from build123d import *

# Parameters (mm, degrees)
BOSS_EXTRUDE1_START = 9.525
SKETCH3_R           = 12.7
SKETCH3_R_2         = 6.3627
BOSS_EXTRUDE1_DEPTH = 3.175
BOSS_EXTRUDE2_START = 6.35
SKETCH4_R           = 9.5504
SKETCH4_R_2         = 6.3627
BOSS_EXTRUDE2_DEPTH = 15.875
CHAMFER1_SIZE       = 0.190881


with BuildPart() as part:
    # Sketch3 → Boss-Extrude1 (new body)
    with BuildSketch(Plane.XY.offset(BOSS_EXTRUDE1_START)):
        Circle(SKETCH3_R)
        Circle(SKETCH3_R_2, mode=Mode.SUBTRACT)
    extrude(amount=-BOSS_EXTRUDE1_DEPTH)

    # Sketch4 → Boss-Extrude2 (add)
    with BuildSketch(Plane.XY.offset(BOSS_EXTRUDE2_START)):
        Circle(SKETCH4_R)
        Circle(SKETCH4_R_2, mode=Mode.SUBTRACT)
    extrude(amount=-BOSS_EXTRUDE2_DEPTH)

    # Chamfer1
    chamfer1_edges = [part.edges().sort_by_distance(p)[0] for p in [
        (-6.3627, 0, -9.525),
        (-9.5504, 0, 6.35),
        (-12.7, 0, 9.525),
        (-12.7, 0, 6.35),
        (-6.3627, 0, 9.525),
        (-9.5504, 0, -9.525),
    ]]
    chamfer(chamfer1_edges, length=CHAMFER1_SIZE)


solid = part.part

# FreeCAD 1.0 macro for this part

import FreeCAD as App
import Part
import Sketcher
from FreeCAD import Vector
Q = App.Units.Quantity


def edges_at(feature, points):
    """Names of the edges that pass closest to the given points."""
    edges = feature.Shape.Edges
    near = lambda p: min(range(len(edges)), key=lambda i: edges[i].distToShape(Part.Vertex(*p))[0])
    return sorted({f"Edge{near(p) + 1}" for p in points})

doc = App.newDocument("Part")
body = doc.addObject("PartDesign::Body", "Body")

# Sketch on XY plane
sketch1 = doc.addObject("Sketcher::SketchObject", "Sketch")
body.addObject(sketch1)
sketch1.AttachmentSupport = (doc.XY_Plane, [""])
sketch1.MapMode = "FlatFace"
sketch1.AttachmentOffset = App.Placement(Vector(0, 0, 0.375 * 25.4), App.Rotation())
sketch1.addGeometry(Part.Circle(Vector(0, 0, 0), Vector(0, 0, 1), 13), False)
sketch1.addGeometry(Part.Circle(Vector(0, 0, 0), Vector(0, 0, 1), 6), False)
sketch1.addConstraint(Sketcher.Constraint("Coincident", 0, 3, -1, 1))
sketch1.addConstraint(Sketcher.Constraint("Coincident", 1, 3, -1, 1))
sketch1.addConstraint(Sketcher.Constraint("Diameter", 0, Q("1 in")))
sketch1.addConstraint(Sketcher.Constraint("Diameter", 1, Q("0.501 in")))
pad1 = doc.addObject("PartDesign::Pad", "Pad")
body.addObject(pad1)
pad1.Profile = sketch1
pad1.Length = Q("0.125 in")
pad1.Reversed = True

# Sketch on XY plane
sketch2 = doc.addObject("Sketcher::SketchObject", "Sketch001")
body.addObject(sketch2)
sketch2.AttachmentSupport = (doc.XY_Plane, [""])
sketch2.MapMode = "FlatFace"
sketch2.AttachmentOffset = App.Placement(Vector(0, 0, 0.25 * 25.4), App.Rotation())
sketch2.addGeometry(Part.Circle(Vector(0, 0, 0), Vector(0, 0, 1), 10), False)
sketch2.addGeometry(Part.Circle(Vector(0, 0, 0), Vector(0, 0, 1), 6), False)
sketch2.addConstraint(Sketcher.Constraint("Coincident", 0, 3, -1, 1))
sketch2.addConstraint(Sketcher.Constraint("Coincident", 1, 3, -1, 1))
sketch2.addConstraint(Sketcher.Constraint("Diameter", 0, Q("0.752 in")))
sketch2.addConstraint(Sketcher.Constraint("Diameter", 1, Q("0.501 in")))
pad2 = doc.addObject("PartDesign::Pad", "Pad001")
body.addObject(pad2)
pad2.Profile = sketch2
pad2.Length = Q("0.625 in")
pad2.Reversed = True
doc.recompute()

chamfer = doc.addObject("PartDesign::Chamfer", "Chamfer")
body.addObject(chamfer)
chamfer.Base = (pad2, edges_at(pad2, [
    (-6.363, 0, -9.525),
    (-9.55, 0, 6.35),
    (-12.7, 0, 9.525),
    (-12.7, 0, 6.35),
    (-6.363, 0, 9.525),
    (-9.55, 0, -9.525),
]))
chamfer.Size = 0.190881

doc.recompute()
